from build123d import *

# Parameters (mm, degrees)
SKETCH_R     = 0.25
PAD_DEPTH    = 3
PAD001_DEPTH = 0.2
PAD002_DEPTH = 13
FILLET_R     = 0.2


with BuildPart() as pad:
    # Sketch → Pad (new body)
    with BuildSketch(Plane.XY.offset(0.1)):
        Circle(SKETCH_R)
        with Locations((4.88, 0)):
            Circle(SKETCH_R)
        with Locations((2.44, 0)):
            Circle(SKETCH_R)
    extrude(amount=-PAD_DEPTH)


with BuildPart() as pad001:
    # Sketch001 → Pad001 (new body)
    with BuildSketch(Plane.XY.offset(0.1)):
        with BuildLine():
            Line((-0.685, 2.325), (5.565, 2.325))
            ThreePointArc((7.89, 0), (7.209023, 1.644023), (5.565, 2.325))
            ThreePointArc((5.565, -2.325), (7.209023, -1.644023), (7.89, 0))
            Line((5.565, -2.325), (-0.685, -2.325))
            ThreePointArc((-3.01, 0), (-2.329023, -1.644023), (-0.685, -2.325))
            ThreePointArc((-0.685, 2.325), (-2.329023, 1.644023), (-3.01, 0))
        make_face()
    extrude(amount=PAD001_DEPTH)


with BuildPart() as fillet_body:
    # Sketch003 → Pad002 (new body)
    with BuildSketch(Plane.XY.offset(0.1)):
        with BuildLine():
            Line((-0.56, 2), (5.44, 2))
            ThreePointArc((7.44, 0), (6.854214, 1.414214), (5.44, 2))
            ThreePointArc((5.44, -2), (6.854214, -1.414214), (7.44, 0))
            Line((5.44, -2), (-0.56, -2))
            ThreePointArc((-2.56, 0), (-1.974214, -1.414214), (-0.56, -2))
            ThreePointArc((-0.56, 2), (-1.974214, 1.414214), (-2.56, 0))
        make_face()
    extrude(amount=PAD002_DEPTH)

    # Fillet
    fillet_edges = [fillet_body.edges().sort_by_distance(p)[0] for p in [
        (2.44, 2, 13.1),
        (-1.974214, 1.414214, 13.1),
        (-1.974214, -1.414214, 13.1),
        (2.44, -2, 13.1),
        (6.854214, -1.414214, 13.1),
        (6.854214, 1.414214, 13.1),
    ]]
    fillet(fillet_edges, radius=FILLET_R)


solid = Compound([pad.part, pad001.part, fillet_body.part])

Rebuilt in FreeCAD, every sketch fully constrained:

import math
import FreeCAD as App
import Part
import Sketcher


def edges_at(feature, points):
    """Names of the edges that pass closest to the given points."""
    edges = feature.Shape.Edges
    near = lambda p: min(range(len(edges)), key=lambda i: edges[i].distToShape(Part.Vertex(*p))[0])
    return sorted({f"Edge{near(p) + 1}" for p in points})

doc = App.newDocument("Part")
body = doc.addObject("PartDesign::Body", "Body")
body.AllowCompound = True

sketch1 = body.newObject("Sketcher::SketchObject", "Sketch")
sketch1.AttachmentSupport = (doc.getObject("XY_Plane"), [""])
sketch1.MapMode = "FlatFace"
sketch1.AttachmentOffset = App.Placement(App.Vector(0, 0, 0.1), App.Rotation())
sketch1.addGeometry([
    Part.Circle(App.Vector(0, 0, 0), App.Vector(0, 0, 1), 0.25),
    Part.Circle(App.Vector(4.88, 0, 0), App.Vector(0, 0, 1), 0.25),
    Part.Circle(App.Vector(2.44, 0, 0), App.Vector(0, 0, 1), 0.25),
], False)
sketch1.addConstraint([
    Sketcher.Constraint("Coincident", 0, 3, -1, 1),
    Sketcher.Constraint("Equal", 0, 1),
    Sketcher.Constraint("Equal", 1, 2),
    Sketcher.Constraint("PointOnObject", 1, 3, -1),
    Sketcher.Constraint("PointOnObject", 2, 3, -1),
    Sketcher.Constraint("Diameter", 0, 0.5),
    Sketcher.Constraint("DistanceX", -1, 1, 1, 3, 4.88),
    Sketcher.Constraint("DistanceX", -1, 1, 2, 3, 2.44),
])
pad1 = body.newObject("PartDesign::Pad", "Pad")
pad1.Profile = sketch1
pad1.Length = 3
pad1.Reversed = True
body2 = doc.addObject("PartDesign::Body", "Body001")

sketch2 = body2.newObject("Sketcher::SketchObject", "Sketch001")
sketch2.AttachmentSupport = (doc.getObject("XY_Plane001"), [""])
sketch2.MapMode = "FlatFace"
sketch2.AttachmentOffset = App.Placement(App.Vector(0, 0, 0.1), App.Rotation())
sketch2.addGeometry([
    Part.LineSegment(App.Vector(5.6, 2.3, 0), App.Vector(-0.7, 2.3, 0)),
    Part.ArcOfCircle(Part.Circle(App.Vector(-0.7, 0, 0), App.Vector(0, 0, 1), 2.3), math.radians(90), math.radians(180)),
    Part.ArcOfCircle(Part.Circle(App.Vector(-0.7, 0, 0), App.Vector(0, 0, 1), 2.3), math.radians(-180), math.radians(-90)),
    Part.LineSegment(App.Vector(-0.7, -2.3, 0), App.Vector(5.6, -2.3, 0)),
    Part.ArcOfCircle(Part.Circle(App.Vector(5.6, 0, 0), App.Vector(0, 0, 1), 2.3), math.radians(-90), math.radians(0)),
    Part.ArcOfCircle(Part.Circle(App.Vector(5.6, 0, 0), App.Vector(0, 0, 1), 2.3), math.radians(0), math.radians(90)),
], False)
sketch2.addConstraint([
    Sketcher.Constraint("Tangent", 0, 2, 1, 1),
    Sketcher.Constraint("Tangent", 1, 2, 2, 1),
    Sketcher.Constraint("Tangent", 2, 2, 3, 1),
    Sketcher.Constraint("Tangent", 3, 2, 4, 1),
    Sketcher.Constraint("Tangent", 4, 2, 5, 1),
    Sketcher.Constraint("Tangent", 5, 2, 0, 1),
    Sketcher.Constraint("Horizontal", 0),
    Sketcher.Constraint("Horizontal", 3),
    Sketcher.Constraint("Equal", 1, 2),
    Sketcher.Constraint("Equal", 2, 4),
    Sketcher.Constraint("PointOnObject", 1, 3, -1),
    Sketcher.Constraint("PointOnObject", 1, 2, -1),
    Sketcher.Constraint("PointOnObject", 4, 2, -1),
    Sketcher.Constraint("Radius", 1, 2.325001),
    Sketcher.Constraint("DistanceX", 0, 2, 0, 1, 6.25),
    Sketcher.Constraint("DistanceX", 1, 2, -1, 1, 3.01),
])
pad2 = body2.newObject("PartDesign::Pad", "Pad001")
pad2.Profile = sketch2
pad2.Length = 0.2
body3 = doc.addObject("PartDesign::Body", "Body002")

sketch3 = body3.newObject("Sketcher::SketchObject", "Sketch002")
sketch3.AttachmentSupport = (doc.getObject("XY_Plane002"), [""])
sketch3.MapMode = "FlatFace"
sketch3.AttachmentOffset = App.Placement(App.Vector(0, 0, 0.1), App.Rotation())
sketch3.addGeometry([
    Part.LineSegment(App.Vector(5.4, 2, 0), App.Vector(-0.6, 2, 0)),
    Part.ArcOfCircle(Part.Circle(App.Vector(-0.6, 0, 0), App.Vector(0, 0, 1), 2), math.radians(90), math.radians(180)),
    Part.ArcOfCircle(Part.Circle(App.Vector(-0.6, 0, 0), App.Vector(0, 0, 1), 2), math.radians(180), math.radians(270)),
    Part.LineSegment(App.Vector(-0.6, -2, 0), App.Vector(5.4, -2, 0)),
    Part.ArcOfCircle(Part.Circle(App.Vector(5.4, 0, 0), App.Vector(0, 0, 1), 2), math.radians(-90), math.radians(0)),
    Part.ArcOfCircle(Part.Circle(App.Vector(5.4, 0, 0), App.Vector(0, 0, 1), 2), math.radians(0), math.radians(90)),
], False)
sketch3.addConstraint([
    Sketcher.Constraint("Tangent", 0, 2, 1, 1),
    Sketcher.Constraint("Tangent", 1, 2, 2, 1),
    Sketcher.Constraint("Tangent", 2, 2, 3, 1),
    Sketcher.Constraint("Tangent", 3, 2, 4, 1),
    Sketcher.Constraint("Tangent", 4, 2, 5, 1),
    Sketcher.Constraint("Tangent", 5, 2, 0, 1),
    Sketcher.Constraint("Horizontal", 0),
    Sketcher.Constraint("Horizontal", 3),
    Sketcher.Constraint("Equal", 1, 2),
    Sketcher.Constraint("Equal", 2, 4),
    Sketcher.Constraint("PointOnObject", 1, 3, -1),
    Sketcher.Constraint("PointOnObject", 1, 2, -1),
    Sketcher.Constraint("PointOnObject", 4, 2, -1),
    Sketcher.Constraint("Radius", 1, 1.999999),
    Sketcher.Constraint("DistanceX", 0, 2, 0, 1, 6.0),
    Sketcher.Constraint("DistanceX", 1, 3, -1, 1, 0.560001),
])
pad3 = body3.newObject("PartDesign::Pad", "Pad002")
pad3.Profile = sketch3
pad3.Length = 13
doc.recompute()

fillet = body3.newObject("PartDesign::Fillet", "Fillet")
fillet.Base = (pad3, edges_at(pad3, [
    (2.44, 2, 13.1),
    (-1.974, 1.414, 13.1),
    (-1.974, -1.414, 13.1),
    (2.44, -2, 13.1),
    (6.854, -1.414, 13.1),
    (6.854, 1.414, 13.1),
]))
fillet.Radius = 0.2

doc.recompute()
